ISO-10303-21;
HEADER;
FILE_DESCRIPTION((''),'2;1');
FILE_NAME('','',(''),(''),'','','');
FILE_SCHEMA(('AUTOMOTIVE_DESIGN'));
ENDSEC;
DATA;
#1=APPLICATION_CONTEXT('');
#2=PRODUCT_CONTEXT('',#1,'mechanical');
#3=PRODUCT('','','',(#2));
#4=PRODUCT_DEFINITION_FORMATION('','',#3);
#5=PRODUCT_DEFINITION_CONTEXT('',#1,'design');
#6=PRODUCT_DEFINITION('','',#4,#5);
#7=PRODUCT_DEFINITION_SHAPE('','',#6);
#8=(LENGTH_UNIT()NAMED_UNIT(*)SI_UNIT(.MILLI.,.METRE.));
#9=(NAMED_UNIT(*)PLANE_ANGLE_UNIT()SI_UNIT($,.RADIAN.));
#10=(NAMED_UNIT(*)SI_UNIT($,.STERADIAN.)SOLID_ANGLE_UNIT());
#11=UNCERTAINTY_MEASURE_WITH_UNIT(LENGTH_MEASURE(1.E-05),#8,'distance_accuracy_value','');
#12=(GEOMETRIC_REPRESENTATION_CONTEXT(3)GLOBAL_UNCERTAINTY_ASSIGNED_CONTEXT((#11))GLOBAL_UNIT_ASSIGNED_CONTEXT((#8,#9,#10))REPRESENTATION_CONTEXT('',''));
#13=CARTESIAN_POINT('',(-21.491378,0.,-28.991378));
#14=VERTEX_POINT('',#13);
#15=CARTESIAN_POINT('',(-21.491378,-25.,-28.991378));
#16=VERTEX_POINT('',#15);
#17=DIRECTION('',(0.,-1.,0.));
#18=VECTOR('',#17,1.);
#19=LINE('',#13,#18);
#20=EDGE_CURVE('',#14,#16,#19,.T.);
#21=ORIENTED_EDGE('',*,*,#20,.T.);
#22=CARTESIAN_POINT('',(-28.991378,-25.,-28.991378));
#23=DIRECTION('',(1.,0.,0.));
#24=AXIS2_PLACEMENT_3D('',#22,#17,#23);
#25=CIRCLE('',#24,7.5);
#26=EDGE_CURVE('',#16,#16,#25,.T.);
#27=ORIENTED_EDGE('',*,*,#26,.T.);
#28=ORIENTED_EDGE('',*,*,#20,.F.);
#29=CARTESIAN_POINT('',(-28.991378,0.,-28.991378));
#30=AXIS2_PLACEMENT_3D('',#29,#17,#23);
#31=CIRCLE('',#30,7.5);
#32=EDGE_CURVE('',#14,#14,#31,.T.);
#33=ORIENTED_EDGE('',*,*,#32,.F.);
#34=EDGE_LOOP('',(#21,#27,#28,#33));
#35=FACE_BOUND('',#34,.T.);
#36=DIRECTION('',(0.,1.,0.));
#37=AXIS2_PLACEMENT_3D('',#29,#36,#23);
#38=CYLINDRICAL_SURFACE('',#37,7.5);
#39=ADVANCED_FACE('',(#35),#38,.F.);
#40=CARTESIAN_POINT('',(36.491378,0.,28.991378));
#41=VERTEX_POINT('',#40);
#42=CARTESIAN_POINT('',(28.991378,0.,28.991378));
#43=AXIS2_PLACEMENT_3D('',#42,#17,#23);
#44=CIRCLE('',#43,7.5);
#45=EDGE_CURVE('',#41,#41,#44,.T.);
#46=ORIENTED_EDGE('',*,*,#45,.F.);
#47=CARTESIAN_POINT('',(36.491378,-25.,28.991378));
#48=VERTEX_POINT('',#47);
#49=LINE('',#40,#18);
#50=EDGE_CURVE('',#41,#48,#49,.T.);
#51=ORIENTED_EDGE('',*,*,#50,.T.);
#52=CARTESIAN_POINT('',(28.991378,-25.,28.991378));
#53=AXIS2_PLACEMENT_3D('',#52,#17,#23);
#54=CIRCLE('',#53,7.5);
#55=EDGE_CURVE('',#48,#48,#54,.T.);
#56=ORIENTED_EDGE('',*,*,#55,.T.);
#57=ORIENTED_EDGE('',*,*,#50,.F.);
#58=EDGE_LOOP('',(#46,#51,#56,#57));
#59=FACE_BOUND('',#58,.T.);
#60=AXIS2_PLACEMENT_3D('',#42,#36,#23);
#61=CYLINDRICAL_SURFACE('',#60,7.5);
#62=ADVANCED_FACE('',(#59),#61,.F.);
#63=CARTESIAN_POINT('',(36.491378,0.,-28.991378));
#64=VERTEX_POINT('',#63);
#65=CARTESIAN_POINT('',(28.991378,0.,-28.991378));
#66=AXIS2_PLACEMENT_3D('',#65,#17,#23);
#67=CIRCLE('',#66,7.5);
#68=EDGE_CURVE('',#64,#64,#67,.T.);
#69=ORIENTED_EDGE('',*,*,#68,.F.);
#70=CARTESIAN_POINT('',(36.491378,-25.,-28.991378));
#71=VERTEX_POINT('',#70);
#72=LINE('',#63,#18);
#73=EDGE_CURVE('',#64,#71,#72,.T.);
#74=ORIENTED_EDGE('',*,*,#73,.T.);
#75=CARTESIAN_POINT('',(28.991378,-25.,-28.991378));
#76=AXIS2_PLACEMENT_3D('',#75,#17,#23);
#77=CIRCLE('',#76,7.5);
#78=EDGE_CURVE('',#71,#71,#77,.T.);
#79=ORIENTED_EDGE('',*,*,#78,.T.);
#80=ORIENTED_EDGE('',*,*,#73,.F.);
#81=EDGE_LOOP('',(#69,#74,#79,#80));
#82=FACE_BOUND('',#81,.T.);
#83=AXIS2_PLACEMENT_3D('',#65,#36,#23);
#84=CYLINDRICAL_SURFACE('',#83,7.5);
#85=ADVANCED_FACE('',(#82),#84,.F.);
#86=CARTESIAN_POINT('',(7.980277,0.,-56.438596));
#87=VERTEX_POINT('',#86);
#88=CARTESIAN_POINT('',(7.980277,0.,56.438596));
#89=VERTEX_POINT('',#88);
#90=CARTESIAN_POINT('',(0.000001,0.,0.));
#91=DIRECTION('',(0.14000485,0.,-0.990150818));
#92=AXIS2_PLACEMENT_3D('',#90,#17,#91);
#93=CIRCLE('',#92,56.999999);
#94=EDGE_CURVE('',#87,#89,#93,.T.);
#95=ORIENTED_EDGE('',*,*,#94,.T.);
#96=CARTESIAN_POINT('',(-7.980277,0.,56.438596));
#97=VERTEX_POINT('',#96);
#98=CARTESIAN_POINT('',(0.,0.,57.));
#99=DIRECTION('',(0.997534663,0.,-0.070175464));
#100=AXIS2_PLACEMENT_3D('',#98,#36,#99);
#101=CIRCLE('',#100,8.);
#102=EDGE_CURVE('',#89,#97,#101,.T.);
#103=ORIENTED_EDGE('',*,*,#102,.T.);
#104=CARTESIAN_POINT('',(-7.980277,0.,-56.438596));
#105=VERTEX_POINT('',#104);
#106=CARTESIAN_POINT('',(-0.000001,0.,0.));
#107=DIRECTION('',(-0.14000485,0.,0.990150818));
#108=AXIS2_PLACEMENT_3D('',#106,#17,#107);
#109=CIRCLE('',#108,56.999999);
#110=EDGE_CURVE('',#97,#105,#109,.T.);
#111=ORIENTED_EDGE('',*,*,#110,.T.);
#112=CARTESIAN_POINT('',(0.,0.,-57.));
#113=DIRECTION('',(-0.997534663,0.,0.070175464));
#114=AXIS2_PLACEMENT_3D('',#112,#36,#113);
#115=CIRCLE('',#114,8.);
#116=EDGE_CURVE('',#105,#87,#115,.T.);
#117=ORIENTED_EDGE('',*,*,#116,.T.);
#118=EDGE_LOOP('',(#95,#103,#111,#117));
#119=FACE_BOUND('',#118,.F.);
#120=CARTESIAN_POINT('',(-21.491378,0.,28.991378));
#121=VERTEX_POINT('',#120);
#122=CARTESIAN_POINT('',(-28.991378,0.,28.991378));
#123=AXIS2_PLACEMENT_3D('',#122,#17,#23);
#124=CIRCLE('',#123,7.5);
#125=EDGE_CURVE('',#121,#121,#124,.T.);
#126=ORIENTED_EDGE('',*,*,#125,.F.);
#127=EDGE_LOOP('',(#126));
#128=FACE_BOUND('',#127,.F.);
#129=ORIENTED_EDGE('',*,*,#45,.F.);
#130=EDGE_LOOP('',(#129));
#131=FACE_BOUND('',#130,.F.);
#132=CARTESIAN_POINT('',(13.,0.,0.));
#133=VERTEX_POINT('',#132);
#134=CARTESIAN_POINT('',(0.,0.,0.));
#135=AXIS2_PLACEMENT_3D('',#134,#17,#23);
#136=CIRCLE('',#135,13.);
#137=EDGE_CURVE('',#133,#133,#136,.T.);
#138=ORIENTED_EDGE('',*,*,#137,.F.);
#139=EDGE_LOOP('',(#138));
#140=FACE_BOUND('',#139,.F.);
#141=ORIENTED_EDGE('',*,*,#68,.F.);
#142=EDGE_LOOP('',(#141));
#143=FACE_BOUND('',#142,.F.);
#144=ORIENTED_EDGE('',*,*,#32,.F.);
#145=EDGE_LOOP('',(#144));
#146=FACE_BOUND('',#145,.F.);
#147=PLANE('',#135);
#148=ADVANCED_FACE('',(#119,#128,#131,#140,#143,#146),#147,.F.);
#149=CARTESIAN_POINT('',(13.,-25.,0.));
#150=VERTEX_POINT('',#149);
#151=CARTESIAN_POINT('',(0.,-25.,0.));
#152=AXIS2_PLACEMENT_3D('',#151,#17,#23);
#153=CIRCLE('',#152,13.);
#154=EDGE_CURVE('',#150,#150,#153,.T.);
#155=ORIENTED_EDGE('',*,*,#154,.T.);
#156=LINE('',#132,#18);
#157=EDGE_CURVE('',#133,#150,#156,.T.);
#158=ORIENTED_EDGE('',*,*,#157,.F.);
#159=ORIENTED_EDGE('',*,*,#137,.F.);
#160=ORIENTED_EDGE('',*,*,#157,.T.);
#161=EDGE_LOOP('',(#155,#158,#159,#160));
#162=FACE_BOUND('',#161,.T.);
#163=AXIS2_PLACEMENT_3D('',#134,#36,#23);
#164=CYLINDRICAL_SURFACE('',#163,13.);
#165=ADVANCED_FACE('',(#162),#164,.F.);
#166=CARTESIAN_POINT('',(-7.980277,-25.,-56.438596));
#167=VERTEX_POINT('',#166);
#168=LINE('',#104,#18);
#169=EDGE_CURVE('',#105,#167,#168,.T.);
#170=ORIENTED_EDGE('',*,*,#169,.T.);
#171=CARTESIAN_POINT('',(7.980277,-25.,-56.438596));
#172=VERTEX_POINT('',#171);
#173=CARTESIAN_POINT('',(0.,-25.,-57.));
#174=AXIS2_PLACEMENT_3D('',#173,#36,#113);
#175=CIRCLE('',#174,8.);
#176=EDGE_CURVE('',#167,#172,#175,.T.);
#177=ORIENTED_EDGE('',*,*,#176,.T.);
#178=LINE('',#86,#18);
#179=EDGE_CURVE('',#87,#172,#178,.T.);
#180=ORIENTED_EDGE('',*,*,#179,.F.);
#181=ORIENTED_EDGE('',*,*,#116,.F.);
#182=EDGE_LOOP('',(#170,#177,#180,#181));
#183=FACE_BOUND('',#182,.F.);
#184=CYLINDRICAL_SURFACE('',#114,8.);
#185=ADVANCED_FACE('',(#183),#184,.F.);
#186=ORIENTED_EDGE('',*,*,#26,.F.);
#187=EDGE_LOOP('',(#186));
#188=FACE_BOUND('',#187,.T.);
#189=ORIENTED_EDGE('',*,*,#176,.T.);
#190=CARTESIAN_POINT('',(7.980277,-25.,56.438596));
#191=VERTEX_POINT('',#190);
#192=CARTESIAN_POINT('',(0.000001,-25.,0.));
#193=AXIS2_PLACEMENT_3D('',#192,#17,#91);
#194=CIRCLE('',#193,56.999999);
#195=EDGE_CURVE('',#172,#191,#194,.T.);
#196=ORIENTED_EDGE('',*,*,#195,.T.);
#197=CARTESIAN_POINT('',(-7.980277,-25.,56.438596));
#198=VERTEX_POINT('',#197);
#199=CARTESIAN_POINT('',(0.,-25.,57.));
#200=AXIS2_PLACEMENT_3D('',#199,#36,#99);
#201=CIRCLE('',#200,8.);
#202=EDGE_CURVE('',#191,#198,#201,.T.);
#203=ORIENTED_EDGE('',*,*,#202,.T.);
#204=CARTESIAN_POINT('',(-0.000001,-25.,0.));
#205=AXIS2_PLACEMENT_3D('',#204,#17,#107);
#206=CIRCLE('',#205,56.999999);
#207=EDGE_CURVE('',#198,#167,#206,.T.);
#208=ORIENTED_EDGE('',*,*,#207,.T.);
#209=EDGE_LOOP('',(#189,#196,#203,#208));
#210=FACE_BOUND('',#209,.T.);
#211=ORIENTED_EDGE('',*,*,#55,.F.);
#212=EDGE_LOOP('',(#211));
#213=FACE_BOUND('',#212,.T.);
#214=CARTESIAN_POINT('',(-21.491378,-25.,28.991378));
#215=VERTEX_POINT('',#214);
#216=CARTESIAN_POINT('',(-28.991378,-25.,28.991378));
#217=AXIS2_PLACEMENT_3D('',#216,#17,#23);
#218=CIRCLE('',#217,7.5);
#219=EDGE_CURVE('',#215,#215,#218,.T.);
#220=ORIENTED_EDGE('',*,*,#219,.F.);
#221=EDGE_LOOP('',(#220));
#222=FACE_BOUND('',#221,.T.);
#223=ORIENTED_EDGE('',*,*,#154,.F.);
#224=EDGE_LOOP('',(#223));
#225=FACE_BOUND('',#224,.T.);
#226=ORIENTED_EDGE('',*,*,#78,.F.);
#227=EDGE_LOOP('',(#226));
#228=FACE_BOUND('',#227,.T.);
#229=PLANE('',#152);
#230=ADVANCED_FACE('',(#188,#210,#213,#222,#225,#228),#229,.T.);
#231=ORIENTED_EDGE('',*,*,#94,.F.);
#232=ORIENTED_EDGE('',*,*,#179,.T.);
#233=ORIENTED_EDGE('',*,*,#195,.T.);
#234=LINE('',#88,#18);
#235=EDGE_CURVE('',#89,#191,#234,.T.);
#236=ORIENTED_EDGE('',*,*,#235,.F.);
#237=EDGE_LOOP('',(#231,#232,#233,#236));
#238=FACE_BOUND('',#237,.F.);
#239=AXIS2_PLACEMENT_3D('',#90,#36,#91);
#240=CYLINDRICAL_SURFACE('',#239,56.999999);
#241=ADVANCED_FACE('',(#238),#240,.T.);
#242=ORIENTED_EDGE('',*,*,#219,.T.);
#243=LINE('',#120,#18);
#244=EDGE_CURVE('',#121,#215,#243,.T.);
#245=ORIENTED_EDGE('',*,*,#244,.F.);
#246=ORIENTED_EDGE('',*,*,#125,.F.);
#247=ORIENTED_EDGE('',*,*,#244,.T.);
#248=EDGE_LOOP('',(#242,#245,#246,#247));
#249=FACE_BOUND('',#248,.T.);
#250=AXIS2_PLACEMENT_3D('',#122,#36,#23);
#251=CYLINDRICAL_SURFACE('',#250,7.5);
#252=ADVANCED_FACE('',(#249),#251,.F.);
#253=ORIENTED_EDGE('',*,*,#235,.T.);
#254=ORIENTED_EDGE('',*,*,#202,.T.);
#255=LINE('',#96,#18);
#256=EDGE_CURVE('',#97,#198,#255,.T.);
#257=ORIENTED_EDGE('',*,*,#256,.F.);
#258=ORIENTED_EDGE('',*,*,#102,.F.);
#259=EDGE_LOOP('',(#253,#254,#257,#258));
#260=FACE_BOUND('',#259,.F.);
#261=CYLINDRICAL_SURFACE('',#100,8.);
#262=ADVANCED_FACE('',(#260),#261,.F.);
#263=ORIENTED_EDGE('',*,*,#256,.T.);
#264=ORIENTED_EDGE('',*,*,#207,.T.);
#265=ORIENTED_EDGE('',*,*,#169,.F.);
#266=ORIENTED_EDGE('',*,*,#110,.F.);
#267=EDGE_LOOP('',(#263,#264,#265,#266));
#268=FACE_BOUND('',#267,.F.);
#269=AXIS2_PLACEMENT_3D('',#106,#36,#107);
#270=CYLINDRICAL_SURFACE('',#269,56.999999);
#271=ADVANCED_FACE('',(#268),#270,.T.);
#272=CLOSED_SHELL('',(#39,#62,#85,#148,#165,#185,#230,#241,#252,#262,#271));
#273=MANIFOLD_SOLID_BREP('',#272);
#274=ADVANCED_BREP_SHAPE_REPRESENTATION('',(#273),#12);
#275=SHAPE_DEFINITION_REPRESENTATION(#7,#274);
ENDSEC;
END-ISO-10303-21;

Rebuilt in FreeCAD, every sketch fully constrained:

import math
import FreeCAD as App
import Part
import Sketcher

doc = App.newDocument("Part")
body = doc.addObject("PartDesign::Body", "Body")

# Sketch on XZ plane
sketch1 = body.newObject("Sketcher::SketchObject", "Sketch")
sketch1.AttachmentSupport = (doc.getObject("XZ_Plane"), [""])
sketch1.MapMode = "FlatFace"
sketch1.addGeometry([
    Part.ArcOfCircle(Part.Circle(App.Vector(0, 57, 0), App.Vector(0, 0, 1), 8), math.radians(-176), math.radians(-4)),  # 0
    Part.ArcOfCircle(Part.Circle(App.Vector(0, 0, 0), App.Vector(0, 0, 1), 57), math.radians(98), math.radians(262)),  # 1
    Part.ArcOfCircle(Part.Circle(App.Vector(0, -57, 0), App.Vector(0, 0, 1), 8), math.radians(4), math.radians(176)),  # 2
    Part.ArcOfCircle(Part.Circle(App.Vector(0, 0, 0), App.Vector(0, 0, 1), 57), math.radians(-82), math.radians(82)),  # 3
    Part.Circle(App.Vector(-29, -29, 0), App.Vector(0, 0, 1), 8),  # 4
    Part.Circle(App.Vector(29, -29, 0), App.Vector(0, 0, 1), 8),  # 5
    Part.Circle(App.Vector(-29, 29, 0), App.Vector(0, 0, 1), 8),  # 6
    Part.Circle(App.Vector(0, 0, 0), App.Vector(0, 0, 1), 13),  # 7
    Part.Circle(App.Vector(29, 29, 0), App.Vector(0, 0, 1), 8),  # 8
], False)
sketch1.addConstraint([
    Sketcher.Constraint("Coincident", 0, 1, 1, 1),
    Sketcher.Constraint("Coincident", 1, 2, 2, 2),
    Sketcher.Constraint("Coincident", 2, 1, 3, 1),
    Sketcher.Constraint("Coincident", 3, 2, 0, 2),
    Sketcher.Constraint("Coincident", 1, 3, -1, 1),
    Sketcher.Constraint("Coincident", 3, 3, -1, 1),
    Sketcher.Constraint("Coincident", 7, 3, -1, 1),
    Sketcher.Constraint("Equal", 0, 2),
    Sketcher.Constraint("Equal", 1, 3),
    Sketcher.Constraint("Equal", 4, 5),
    Sketcher.Constraint("Equal", 5, 6),
    Sketcher.Constraint("Equal", 6, 8),
    Sketcher.Constraint("Symmetric", 0, 3, 2, 3, -1, 1),
    Sketcher.Constraint("Symmetric", 5, 3, 6, 3, -1, 1),
    Sketcher.Constraint("Symmetric", 4, 3, 8, 3, -1, 1),
    Sketcher.Constraint("Symmetric", 4, 3, 5, 3, -2),
    Sketcher.Constraint("PointOnObject", 0, 3, -2),
    Sketcher.Constraint("Diameter", 4, 15.0),
    Sketcher.Constraint("Diameter", 7, 26.0),
    Sketcher.Constraint("Radius", 0, 8.0),
    Sketcher.Constraint("Radius", 1, 56.999999),
    Sketcher.Constraint("DistanceY", -1, 1, 0, 3, 57.0),
    Sketcher.Constraint("DistanceX", 6, 3, 0, 1, 21.011101),
    Sketcher.Constraint("DistanceY", 4, 3, -1, 1, 28.991378),
])
pad1 = body.newObject("PartDesign::Pad", "Pad")
pad1.Profile = sketch1
pad1.Length = 25

doc.recompute()
